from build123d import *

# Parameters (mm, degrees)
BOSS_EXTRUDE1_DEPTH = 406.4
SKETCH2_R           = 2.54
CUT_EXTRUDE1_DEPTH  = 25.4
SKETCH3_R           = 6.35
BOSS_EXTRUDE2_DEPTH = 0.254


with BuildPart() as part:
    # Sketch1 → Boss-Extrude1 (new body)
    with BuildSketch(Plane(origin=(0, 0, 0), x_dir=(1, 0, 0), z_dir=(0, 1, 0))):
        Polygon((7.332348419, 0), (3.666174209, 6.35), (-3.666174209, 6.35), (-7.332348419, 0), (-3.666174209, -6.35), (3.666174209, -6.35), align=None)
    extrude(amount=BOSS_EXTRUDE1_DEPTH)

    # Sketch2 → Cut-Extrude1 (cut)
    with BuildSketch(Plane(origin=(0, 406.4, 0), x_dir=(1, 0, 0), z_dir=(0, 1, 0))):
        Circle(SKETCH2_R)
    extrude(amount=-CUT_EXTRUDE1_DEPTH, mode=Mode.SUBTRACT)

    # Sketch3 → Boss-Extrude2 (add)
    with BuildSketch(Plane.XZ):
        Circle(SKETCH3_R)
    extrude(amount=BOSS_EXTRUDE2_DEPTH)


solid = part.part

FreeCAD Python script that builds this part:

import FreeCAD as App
import Part
import Sketcher
from FreeCAD import Vector
Q = App.Units.Quantity


def add_polygon(sketch, points):
    """Adds a closed chain of lines whose ends are joined by coincident constraints."""
    first, n = sketch.GeometryCount, len(points)
    for a, b in zip(points, points[1:] + points[:1]):
        sketch.addGeometry(Part.LineSegment(App.Vector(*a, 0), App.Vector(*b, 0)), False)
    for i in range(n):
        sketch.addConstraint(Sketcher.Constraint("Coincident", first + i, 2, first + (i + 1) % n, 1))

doc = App.newDocument("Part")
body = doc.addObject("PartDesign::Body", "Body")

sketch1 = body.newObject("Sketcher::SketchObject", "Sketch")
sketch1.AttachmentSupport = (doc.getObject("XZ_Plane"), [""])
sketch1.MapMode = "FlatFace"
add_polygon(sketch1, [(7.332348, 0), (3.666174, -6.35), (-3.666174, -6.35), (-7.332348, 0), (-3.666174, 6.35), (3.666174, 6.35)])
sketch1.addConstraint([
    Sketcher.Constraint("Horizontal", 1),
    Sketcher.Constraint("Horizontal", 4),
    Sketcher.Constraint("Symmetric", 0, 2, 3, 2, -1, 1),
    Sketcher.Constraint("Symmetric", 2, 2, 5, 2, -1, 1),
    Sketcher.Constraint("PointOnObject", 2, 2, -1),
    Sketcher.Constraint("Parallel", 2, 5),
    Sketcher.Constraint("Vertical", 1, 2, 3, 2),
    Sketcher.Constraint("Angle", 0, Q("-120 deg")),
    Sketcher.Constraint("DistanceY", 1, 2, 3, 2, Q("0.5 in")),
    Sketcher.Constraint("DistanceX", 1, 2, 1, 1, 7.332348),
])
pad1 = body.newObject("PartDesign::Pad", "Pad")
pad1.Profile = sketch1
pad1.Length = Q("16 in")
pad1.Reversed = True

sketch2 = body.newObject("Sketcher::SketchObject", "Sketch001")
sketch2.AttachmentSupport = (doc.getObject("XZ_Plane"), [""])
sketch2.MapMode = "FlatFace"
sketch2.AttachmentOffset = App.Placement(Vector(0, 0, -16 * 25.4), App.Rotation())
sketch2.addGeometry(Part.Circle(Vector(0, 0, 0), Vector(0, 0, 1), 2.54), False)
sketch2.addConstraint([
    Sketcher.Constraint("Coincident", 0, 3, -1, 1),
    Sketcher.Constraint("Diameter", 0, Q("0.2 in")),
])
pocket1 = body.newObject("PartDesign::Pocket", "Pocket")
pocket1.Profile = sketch2
pocket1.Length = Q("1 in")
pocket1.Reversed = True

sketch3 = body.newObject("Sketcher::SketchObject", "Sketch002")
sketch3.AttachmentSupport = (doc.getObject("XZ_Plane"), [""])
sketch3.MapMode = "FlatFace"
sketch3.addGeometry(Part.Circle(Vector(0, 0, 0), Vector(0, 0, 1), 6.35), False)
sketch3.addConstraint([
    Sketcher.Constraint("Coincident", 0, 3, -1, 1),
    Sketcher.Constraint("Diameter", 0, Q("0.5 in")),
])
pad2 = body.newObject("PartDesign::Pad", "Pad001")
pad2.Profile = sketch3
pad2.Length = Q("0.01 in")

doc.recompute()
